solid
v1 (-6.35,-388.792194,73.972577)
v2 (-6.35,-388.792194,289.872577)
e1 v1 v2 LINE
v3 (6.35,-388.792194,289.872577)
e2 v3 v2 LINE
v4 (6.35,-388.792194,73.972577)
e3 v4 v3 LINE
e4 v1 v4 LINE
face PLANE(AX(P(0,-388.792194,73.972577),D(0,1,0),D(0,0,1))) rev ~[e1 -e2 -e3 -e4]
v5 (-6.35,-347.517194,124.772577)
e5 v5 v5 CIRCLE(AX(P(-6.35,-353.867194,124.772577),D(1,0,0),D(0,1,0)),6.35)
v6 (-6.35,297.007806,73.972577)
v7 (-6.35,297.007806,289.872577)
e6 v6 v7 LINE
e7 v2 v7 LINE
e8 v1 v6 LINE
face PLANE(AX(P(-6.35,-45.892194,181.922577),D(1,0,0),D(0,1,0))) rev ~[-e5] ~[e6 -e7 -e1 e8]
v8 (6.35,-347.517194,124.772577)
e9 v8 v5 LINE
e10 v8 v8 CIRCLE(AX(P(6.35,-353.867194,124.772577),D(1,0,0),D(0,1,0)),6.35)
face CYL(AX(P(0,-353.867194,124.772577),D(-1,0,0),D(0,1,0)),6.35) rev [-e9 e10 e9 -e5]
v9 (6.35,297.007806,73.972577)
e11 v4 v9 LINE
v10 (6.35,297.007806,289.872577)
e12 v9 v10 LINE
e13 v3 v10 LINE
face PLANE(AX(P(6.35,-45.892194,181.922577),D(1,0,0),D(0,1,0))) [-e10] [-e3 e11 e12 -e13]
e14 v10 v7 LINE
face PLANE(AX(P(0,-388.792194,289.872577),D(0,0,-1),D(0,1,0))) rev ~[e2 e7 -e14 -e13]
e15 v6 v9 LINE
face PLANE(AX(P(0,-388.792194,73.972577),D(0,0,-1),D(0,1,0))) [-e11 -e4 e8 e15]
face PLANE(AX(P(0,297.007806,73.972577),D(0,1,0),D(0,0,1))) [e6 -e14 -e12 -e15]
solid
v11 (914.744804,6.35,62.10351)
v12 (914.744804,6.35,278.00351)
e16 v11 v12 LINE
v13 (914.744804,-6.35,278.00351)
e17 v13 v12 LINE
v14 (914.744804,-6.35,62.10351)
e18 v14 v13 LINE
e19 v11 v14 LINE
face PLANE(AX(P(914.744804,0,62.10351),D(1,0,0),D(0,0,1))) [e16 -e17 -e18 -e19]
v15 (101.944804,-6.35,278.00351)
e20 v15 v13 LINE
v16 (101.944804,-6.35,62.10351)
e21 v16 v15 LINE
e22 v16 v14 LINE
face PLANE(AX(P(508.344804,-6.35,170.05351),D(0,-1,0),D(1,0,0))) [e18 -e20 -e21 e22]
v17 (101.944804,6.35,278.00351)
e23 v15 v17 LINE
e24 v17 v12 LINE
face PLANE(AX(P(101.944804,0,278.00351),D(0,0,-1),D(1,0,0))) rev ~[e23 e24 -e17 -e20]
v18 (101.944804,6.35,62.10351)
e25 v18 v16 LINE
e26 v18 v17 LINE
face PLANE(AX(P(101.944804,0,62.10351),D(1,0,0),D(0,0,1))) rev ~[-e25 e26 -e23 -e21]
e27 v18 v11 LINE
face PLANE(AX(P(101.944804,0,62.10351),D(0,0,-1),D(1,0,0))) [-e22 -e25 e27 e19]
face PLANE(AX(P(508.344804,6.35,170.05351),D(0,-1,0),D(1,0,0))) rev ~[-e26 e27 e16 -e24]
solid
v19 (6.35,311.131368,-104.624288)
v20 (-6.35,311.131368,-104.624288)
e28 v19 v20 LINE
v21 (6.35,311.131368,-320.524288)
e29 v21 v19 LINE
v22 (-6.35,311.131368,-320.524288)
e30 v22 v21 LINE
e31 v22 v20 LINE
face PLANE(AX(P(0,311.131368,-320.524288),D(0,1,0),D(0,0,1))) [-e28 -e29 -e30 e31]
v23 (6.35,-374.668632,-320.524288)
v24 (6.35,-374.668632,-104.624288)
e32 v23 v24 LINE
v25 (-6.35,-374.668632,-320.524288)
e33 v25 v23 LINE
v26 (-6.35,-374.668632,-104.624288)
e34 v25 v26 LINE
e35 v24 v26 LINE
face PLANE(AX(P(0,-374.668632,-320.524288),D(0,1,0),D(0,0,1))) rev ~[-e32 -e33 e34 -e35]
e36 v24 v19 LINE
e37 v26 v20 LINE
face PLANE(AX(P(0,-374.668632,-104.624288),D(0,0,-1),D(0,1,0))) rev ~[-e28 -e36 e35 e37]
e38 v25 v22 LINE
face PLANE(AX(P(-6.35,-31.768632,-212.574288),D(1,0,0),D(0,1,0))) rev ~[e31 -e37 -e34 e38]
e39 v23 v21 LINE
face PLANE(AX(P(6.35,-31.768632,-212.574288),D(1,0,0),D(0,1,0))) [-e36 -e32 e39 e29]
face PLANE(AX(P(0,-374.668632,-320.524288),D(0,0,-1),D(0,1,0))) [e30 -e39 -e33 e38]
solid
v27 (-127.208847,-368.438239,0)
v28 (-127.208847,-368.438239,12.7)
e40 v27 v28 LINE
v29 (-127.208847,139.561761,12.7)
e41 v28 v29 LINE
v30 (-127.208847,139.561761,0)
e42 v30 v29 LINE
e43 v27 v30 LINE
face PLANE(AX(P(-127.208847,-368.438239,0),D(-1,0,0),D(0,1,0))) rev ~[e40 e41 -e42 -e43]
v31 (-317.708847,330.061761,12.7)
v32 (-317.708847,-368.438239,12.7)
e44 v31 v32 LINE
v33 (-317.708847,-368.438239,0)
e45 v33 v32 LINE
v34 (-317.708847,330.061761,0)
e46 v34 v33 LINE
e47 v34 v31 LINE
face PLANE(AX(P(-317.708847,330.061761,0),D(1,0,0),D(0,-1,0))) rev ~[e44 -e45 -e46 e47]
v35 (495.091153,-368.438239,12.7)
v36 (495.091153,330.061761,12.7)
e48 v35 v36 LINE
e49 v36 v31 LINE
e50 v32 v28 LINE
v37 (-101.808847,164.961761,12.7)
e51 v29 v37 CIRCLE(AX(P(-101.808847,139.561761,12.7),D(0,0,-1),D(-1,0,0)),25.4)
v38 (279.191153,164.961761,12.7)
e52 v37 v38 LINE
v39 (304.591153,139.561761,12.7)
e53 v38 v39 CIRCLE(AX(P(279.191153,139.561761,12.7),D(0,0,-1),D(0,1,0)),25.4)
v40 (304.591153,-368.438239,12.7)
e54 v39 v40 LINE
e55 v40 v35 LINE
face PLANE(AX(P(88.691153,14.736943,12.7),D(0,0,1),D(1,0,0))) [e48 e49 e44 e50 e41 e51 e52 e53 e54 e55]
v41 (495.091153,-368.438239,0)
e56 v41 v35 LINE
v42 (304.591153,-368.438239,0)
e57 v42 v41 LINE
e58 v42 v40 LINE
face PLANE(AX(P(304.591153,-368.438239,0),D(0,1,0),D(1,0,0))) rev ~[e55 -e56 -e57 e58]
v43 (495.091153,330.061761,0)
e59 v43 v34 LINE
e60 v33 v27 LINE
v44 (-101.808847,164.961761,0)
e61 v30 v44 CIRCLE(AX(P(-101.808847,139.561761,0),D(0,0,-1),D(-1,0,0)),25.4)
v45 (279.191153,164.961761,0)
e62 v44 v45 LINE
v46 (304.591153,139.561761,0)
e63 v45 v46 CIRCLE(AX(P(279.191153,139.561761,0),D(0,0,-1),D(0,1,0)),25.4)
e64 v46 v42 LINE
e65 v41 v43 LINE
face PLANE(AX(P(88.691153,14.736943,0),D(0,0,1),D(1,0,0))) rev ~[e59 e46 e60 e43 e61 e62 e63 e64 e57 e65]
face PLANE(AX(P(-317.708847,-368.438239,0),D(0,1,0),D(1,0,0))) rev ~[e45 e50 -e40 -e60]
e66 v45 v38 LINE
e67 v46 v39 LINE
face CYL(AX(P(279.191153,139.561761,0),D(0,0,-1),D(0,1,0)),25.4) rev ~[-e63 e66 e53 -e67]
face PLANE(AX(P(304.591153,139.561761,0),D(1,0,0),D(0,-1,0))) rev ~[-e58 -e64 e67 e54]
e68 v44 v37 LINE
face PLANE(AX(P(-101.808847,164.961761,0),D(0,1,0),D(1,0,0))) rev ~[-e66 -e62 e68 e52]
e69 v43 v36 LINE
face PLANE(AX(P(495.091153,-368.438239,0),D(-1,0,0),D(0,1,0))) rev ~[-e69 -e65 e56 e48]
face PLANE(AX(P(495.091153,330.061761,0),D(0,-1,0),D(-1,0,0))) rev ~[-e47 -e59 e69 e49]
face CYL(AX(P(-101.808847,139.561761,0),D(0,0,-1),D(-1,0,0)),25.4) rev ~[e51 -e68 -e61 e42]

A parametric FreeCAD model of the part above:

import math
import FreeCAD as App
import Part
import Sketcher
from FreeCAD import Vector
Q = App.Units.Quantity

doc = App.newDocument("Part")
params = doc.addObject("Spreadsheet::Sheet", "Params")
for row, (alias, value) in enumerate([
    ("sketch1_radius", "1 in"),
    ("sketch1_width", "15 in"),
    ("sketch1_width2", "32 in"),
    ("sketch1_height", "20 in"),
    ("sketch1_height2", "27.5 in"),
    ("pad1_length", "0.5 in"),
    ("sketch2_diameter", "0.5 in"),
    ("sketch2_width", "27 in"),
    ("sketch2_height", "8.5 in"),
    ("pad2_length", "0.5 in"),
    ("sketch3_width", "27 in"),
    ("sketch3_height", "8.5 in"),
    ("pad3_length", "0.5 in"),
    ("sketch4_width", "32 in"),
    ("sketch4_height", "8.5 in"),
    ("pad4_length", "0.5 in"),
], start=1):
    params.set(f"A{row}", alias)
    params.set(f"B{row}", "=" + value)
    params.setAlias(f"B{row}", alias)

body = doc.addObject("PartDesign::Body", "Body")

# Sketch on XY plane
sketch1 = body.newObject("Sketcher::SketchObject", "Sketch")
sketch1.AttachmentSupport = (doc.getObject("XY_Plane"), [""])
sketch1.MapMode = "FlatFace"
sketch1.addGeometry(Part.LineSegment(Vector(-317.708847, 330.061761, 0), Vector(-317.708847, -368.438239, 0)), False)
sketch1.addGeometry(Part.LineSegment(Vector(-317.708847, -368.438239, 0), Vector(-127.208847, -368.438239, 0)), False)
sketch1.addGeometry(Part.LineSegment(Vector(-127.208847, -368.438239, 0), Vector(-127.208847, 139.561761, 0)), False)
sketch1.addGeometry(Part.ArcOfCircle(Part.Circle(Vector(-101.808847, 139.561761, 0), Vector(0, 0, 1), 25.4), math.radians(90), math.radians(180)), False)
sketch1.addGeometry(Part.LineSegment(Vector(-101.808847, 164.961761, 0), Vector(279.191153, 164.961761, 0)), False)
sketch1.addGeometry(Part.ArcOfCircle(Part.Circle(Vector(279.191153, 139.561761, 0), Vector(0, 0, 1), 25.4), math.radians(0), math.radians(90)), False)
sketch1.addGeometry(Part.LineSegment(Vector(304.591153, 139.561761, 0), Vector(304.591153, -368.438239, 0)), False)
sketch1.addGeometry(Part.LineSegment(Vector(304.591153, -368.438239, 0), Vector(495.091153, -368.438239, 0)), False)
sketch1.addGeometry(Part.LineSegment(Vector(495.091153, -368.438239, 0), Vector(495.091153, 330.061761, 0)), False)
sketch1.addGeometry(Part.LineSegment(Vector(495.091153, 330.061761, 0), Vector(-317.708847, 330.061761, 0)), False)
sketch1.addConstraint(Sketcher.Constraint("Coincident", 0, 2, 1, 1))
sketch1.addConstraint(Sketcher.Constraint("Coincident", 1, 2, 2, 1))
sketch1.addConstraint(Sketcher.Constraint("Tangent", 2, 2, 3, 2))
sketch1.addConstraint(Sketcher.Constraint("Tangent", 3, 1, 4, 1))
sketch1.addConstraint(Sketcher.Constraint("Tangent", 4, 2, 5, 2))
sketch1.addConstraint(Sketcher.Constraint("Tangent", 5, 1, 6, 1))
sketch1.addConstraint(Sketcher.Constraint("Coincident", 6, 2, 7, 1))
sketch1.addConstraint(Sketcher.Constraint("Coincident", 7, 2, 8, 1))
sketch1.addConstraint(Sketcher.Constraint("Coincident", 8, 2, 9, 1))
sketch1.addConstraint(Sketcher.Constraint("Coincident", 9, 2, 0, 1))
sketch1.addConstraint(Sketcher.Constraint("Vertical", 0))
sketch1.addConstraint(Sketcher.Constraint("Horizontal", 1))
sketch1.addConstraint(Sketcher.Constraint("Vertical", 2))
sketch1.addConstraint(Sketcher.Constraint("Horizontal", 4))
sketch1.addConstraint(Sketcher.Constraint("Vertical", 6))
sketch1.addConstraint(Sketcher.Constraint("Horizontal", 7))
sketch1.addConstraint(Sketcher.Constraint("Vertical", 8))
sketch1.addConstraint(Sketcher.Constraint("Horizontal", 9))
sketch1.addConstraint(Sketcher.Constraint("Equal", 3, 5))
sketch1.addConstraint(Sketcher.Constraint("Horizontal", 1, 2, 6, 2))
sketch1.addConstraint(Sketcher.Constraint("Equal", 1, 7))
sketch1.addConstraint(Sketcher.Constraint("Radius", 3, Q("1 in")))
sketch1.addConstraint(Sketcher.Constraint("DistanceX", 4, 1, 4, 2, Q("15 in")))
sketch1.addConstraint(Sketcher.Constraint("DistanceX", 9, 2, 9, 1, Q("32 in")))
sketch1.addConstraint(Sketcher.Constraint("DistanceY", 2, 1, 2, 2, Q("20 in")))
sketch1.addConstraint(Sketcher.Constraint("DistanceY", 0, 2, 0, 1, Q("27.5 in")))
sketch1.addConstraint(Sketcher.Constraint("DistanceY", -1, 1, 3, 3, 139.561761))
sketch1.addConstraint(Sketcher.Constraint("DistanceX", 3, 3, -1, 1, 101.808847))
sketch1.setExpression("Constraints[21]", "Params.sketch1_radius")
sketch1.setExpression("Constraints[22]", "Params.sketch1_width")
sketch1.setExpression("Constraints[23]", "Params.sketch1_width2")
sketch1.setExpression("Constraints[24]", "Params.sketch1_height")
sketch1.setExpression("Constraints[25]", "Params.sketch1_height2")
pad1 = body.newObject("PartDesign::Pad", "Pad")
pad1.Profile = sketch1
pad1.setExpression("Length", "Params.pad1_length")
body2 = doc.addObject("PartDesign::Body", "Body001")

# Sketch on YZ plane
sketch2 = body2.newObject("Sketcher::SketchObject", "Sketch001")
sketch2.AttachmentSupport = (doc.getObject("YZ_Plane001"), [""])
sketch2.MapMode = "FlatFace"
sketch2.addGeometry(Part.LineSegment(Vector(-388.792194, 289.872577, 0), Vector(-388.792194, 73.972577, 0)), False)
sketch2.addGeometry(Part.LineSegment(Vector(-388.792194, 73.972577, 0), Vector(297.007806, 73.972577, 0)), False)
sketch2.addGeometry(Part.LineSegment(Vector(297.007806, 73.972577, 0), Vector(297.007806, 289.872577, 0)), False)
sketch2.addGeometry(Part.LineSegment(Vector(297.007806, 289.872577, 0), Vector(-388.792194, 289.872577, 0)), False)
sketch2.addGeometry(Part.Circle(Vector(-353.867194, 124.772577, 0), Vector(0, 0, 1), 6.35), False)
sketch2.addConstraint(Sketcher.Constraint("Coincident", 0, 2, 1, 1))
sketch2.addConstraint(Sketcher.Constraint("Coincident", 1, 2, 2, 1))
sketch2.addConstraint(Sketcher.Constraint("Coincident", 2, 2, 3, 1))
sketch2.addConstraint(Sketcher.Constraint("Coincident", 3, 2, 0, 1))
sketch2.addConstraint(Sketcher.Constraint("Vertical", 0))
sketch2.addConstraint(Sketcher.Constraint("Horizontal", 1))
sketch2.addConstraint(Sketcher.Constraint("Vertical", 2))
sketch2.addConstraint(Sketcher.Constraint("Horizontal", 3))
sketch2.addConstraint(Sketcher.Constraint("Diameter", 4, Q("0.5 in")))
sketch2.addConstraint(Sketcher.Constraint("DistanceX", 1, 1, 1, 2, Q("27 in")))
sketch2.addConstraint(Sketcher.Constraint("DistanceY", 0, 2, 0, 1, Q("8.5 in")))
sketch2.addConstraint(Sketcher.Constraint("DistanceY", 0, 2, 4, 3, Q("2 in")))
sketch2.addConstraint(Sketcher.Constraint("DistanceX", 0, 2, 4, 3, Q("1.375 in")))
sketch2.addConstraint(Sketcher.Constraint("DistanceX", 4, 3, -1, 1, 353.867194))
sketch2.addConstraint(Sketcher.Constraint("DistanceY", -1, 1, 4, 3, 124.772577))
sketch2.setExpression("Constraints[8]", "Params.sketch2_diameter")
sketch2.setExpression("Constraints[9]", "Params.sketch2_width")
sketch2.setExpression("Constraints[10]", "Params.sketch2_height")
pad2 = body2.newObject("PartDesign::Pad", "Pad001")
pad2.Profile = sketch2
pad2.setExpression("Length", "Params.pad2_length")
pad2.Midplane = True
body3 = doc.addObject("PartDesign::Body", "Body002")

# Sketch on YZ plane
sketch3 = body3.newObject("Sketcher::SketchObject", "Sketch002")
sketch3.AttachmentSupport = (doc.getObject("YZ_Plane002"), [""])
sketch3.MapMode = "FlatFace"
sketch3.addGeometry(Part.LineSegment(Vector(-374.668632, -104.624288, 0), Vector(-374.668632, -320.524288, 0)), False)
sketch3.addGeometry(Part.LineSegment(Vector(-374.668632, -320.524288, 0), Vector(311.131368, -320.524288, 0)), False)
sketch3.addGeometry(Part.LineSegment(Vector(311.131368, -320.524288, 0), Vector(311.131368, -104.624288, 0)), False)
sketch3.addGeometry(Part.LineSegment(Vector(311.131368, -104.624288, 0), Vector(-374.668632, -104.624288, 0)), False)
sketch3.addConstraint(Sketcher.Constraint("Coincident", 0, 2, 1, 1))
sketch3.addConstraint(Sketcher.Constraint("Coincident", 1, 2, 2, 1))
sketch3.addConstraint(Sketcher.Constraint("Coincident", 2, 2, 3, 1))
sketch3.addConstraint(Sketcher.Constraint("Coincident", 3, 2, 0, 1))
sketch3.addConstraint(Sketcher.Constraint("Vertical", 0))
sketch3.addConstraint(Sketcher.Constraint("Horizontal", 1))
sketch3.addConstraint(Sketcher.Constraint("Vertical", 2))
sketch3.addConstraint(Sketcher.Constraint("Horizontal", 3))
sketch3.addConstraint(Sketcher.Constraint("DistanceX", 1, 1, 1, 2, Q("27 in")))
sketch3.addConstraint(Sketcher.Constraint("DistanceY", 0, 2, 0, 1, Q("8.5 in")))
sketch3.addConstraint(Sketcher.Constraint("DistanceY", 0, 2, -1, 1, 320.524288))
sketch3.addConstraint(Sketcher.Constraint("DistanceX", 0, 2, -1, 1, 374.668632))
sketch3.setExpression("Constraints[8]", "Params.sketch3_width")
sketch3.setExpression("Constraints[9]", "Params.sketch3_height")
pad3 = body3.newObject("PartDesign::Pad", "Pad002")
pad3.Profile = sketch3
pad3.setExpression("Length", "Params.pad3_length")
pad3.Midplane = True
body4 = doc.addObject("PartDesign::Body", "Body003")

# Sketch on XZ plane
sketch4 = body4.newObject("Sketcher::SketchObject", "Sketch003")
sketch4.AttachmentSupport = (doc.getObject("XZ_Plane003"), [""])
sketch4.MapMode = "FlatFace"
sketch4.addGeometry(Part.LineSegment(Vector(101.944804, 278.00351, 0), Vector(101.944804, 62.10351, 0)), False)
sketch4.addGeometry(Part.LineSegment(Vector(101.944804, 62.10351, 0), Vector(914.744804, 62.10351, 0)), False)
sketch4.addGeometry(Part.LineSegment(Vector(914.744804, 62.10351, 0), Vector(914.744804, 278.00351, 0)), False)
sketch4.addGeometry(Part.LineSegment(Vector(914.744804, 278.00351, 0), Vector(101.944804, 278.00351, 0)), False)
sketch4.addConstraint(Sketcher.Constraint("Coincident", 0, 2, 1, 1))
sketch4.addConstraint(Sketcher.Constraint("Coincident", 1, 2, 2, 1))
sketch4.addConstraint(Sketcher.Constraint("Coincident", 2, 2, 3, 1))
sketch4.addConstraint(Sketcher.Constraint("Coincident", 3, 2, 0, 1))
sketch4.addConstraint(Sketcher.Constraint("Vertical", 0))
sketch4.addConstraint(Sketcher.Constraint("Horizontal", 1))
sketch4.addConstraint(Sketcher.Constraint("Vertical", 2))
sketch4.addConstraint(Sketcher.Constraint("Horizontal", 3))
sketch4.addConstraint(Sketcher.Constraint("DistanceX", 1, 1, 1, 2, Q("32 in")))
sketch4.addConstraint(Sketcher.Constraint("DistanceY", 0, 2, 0, 1, Q("8.5 in")))
sketch4.addConstraint(Sketcher.Constraint("DistanceY", -1, 1, 0, 2, 62.10351))
sketch4.addConstraint(Sketcher.Constraint("DistanceX", -1, 1, 0, 2, 101.944804))
sketch4.setExpression("Constraints[8]", "Params.sketch4_width")
sketch4.setExpression("Constraints[9]", "Params.sketch4_height")
pad4 = body4.newObject("PartDesign::Pad", "Pad003")
pad4.Profile = sketch4
pad4.setExpression("Length", "Params.pad4_length")
pad4.Midplane = True

doc.recompute()
